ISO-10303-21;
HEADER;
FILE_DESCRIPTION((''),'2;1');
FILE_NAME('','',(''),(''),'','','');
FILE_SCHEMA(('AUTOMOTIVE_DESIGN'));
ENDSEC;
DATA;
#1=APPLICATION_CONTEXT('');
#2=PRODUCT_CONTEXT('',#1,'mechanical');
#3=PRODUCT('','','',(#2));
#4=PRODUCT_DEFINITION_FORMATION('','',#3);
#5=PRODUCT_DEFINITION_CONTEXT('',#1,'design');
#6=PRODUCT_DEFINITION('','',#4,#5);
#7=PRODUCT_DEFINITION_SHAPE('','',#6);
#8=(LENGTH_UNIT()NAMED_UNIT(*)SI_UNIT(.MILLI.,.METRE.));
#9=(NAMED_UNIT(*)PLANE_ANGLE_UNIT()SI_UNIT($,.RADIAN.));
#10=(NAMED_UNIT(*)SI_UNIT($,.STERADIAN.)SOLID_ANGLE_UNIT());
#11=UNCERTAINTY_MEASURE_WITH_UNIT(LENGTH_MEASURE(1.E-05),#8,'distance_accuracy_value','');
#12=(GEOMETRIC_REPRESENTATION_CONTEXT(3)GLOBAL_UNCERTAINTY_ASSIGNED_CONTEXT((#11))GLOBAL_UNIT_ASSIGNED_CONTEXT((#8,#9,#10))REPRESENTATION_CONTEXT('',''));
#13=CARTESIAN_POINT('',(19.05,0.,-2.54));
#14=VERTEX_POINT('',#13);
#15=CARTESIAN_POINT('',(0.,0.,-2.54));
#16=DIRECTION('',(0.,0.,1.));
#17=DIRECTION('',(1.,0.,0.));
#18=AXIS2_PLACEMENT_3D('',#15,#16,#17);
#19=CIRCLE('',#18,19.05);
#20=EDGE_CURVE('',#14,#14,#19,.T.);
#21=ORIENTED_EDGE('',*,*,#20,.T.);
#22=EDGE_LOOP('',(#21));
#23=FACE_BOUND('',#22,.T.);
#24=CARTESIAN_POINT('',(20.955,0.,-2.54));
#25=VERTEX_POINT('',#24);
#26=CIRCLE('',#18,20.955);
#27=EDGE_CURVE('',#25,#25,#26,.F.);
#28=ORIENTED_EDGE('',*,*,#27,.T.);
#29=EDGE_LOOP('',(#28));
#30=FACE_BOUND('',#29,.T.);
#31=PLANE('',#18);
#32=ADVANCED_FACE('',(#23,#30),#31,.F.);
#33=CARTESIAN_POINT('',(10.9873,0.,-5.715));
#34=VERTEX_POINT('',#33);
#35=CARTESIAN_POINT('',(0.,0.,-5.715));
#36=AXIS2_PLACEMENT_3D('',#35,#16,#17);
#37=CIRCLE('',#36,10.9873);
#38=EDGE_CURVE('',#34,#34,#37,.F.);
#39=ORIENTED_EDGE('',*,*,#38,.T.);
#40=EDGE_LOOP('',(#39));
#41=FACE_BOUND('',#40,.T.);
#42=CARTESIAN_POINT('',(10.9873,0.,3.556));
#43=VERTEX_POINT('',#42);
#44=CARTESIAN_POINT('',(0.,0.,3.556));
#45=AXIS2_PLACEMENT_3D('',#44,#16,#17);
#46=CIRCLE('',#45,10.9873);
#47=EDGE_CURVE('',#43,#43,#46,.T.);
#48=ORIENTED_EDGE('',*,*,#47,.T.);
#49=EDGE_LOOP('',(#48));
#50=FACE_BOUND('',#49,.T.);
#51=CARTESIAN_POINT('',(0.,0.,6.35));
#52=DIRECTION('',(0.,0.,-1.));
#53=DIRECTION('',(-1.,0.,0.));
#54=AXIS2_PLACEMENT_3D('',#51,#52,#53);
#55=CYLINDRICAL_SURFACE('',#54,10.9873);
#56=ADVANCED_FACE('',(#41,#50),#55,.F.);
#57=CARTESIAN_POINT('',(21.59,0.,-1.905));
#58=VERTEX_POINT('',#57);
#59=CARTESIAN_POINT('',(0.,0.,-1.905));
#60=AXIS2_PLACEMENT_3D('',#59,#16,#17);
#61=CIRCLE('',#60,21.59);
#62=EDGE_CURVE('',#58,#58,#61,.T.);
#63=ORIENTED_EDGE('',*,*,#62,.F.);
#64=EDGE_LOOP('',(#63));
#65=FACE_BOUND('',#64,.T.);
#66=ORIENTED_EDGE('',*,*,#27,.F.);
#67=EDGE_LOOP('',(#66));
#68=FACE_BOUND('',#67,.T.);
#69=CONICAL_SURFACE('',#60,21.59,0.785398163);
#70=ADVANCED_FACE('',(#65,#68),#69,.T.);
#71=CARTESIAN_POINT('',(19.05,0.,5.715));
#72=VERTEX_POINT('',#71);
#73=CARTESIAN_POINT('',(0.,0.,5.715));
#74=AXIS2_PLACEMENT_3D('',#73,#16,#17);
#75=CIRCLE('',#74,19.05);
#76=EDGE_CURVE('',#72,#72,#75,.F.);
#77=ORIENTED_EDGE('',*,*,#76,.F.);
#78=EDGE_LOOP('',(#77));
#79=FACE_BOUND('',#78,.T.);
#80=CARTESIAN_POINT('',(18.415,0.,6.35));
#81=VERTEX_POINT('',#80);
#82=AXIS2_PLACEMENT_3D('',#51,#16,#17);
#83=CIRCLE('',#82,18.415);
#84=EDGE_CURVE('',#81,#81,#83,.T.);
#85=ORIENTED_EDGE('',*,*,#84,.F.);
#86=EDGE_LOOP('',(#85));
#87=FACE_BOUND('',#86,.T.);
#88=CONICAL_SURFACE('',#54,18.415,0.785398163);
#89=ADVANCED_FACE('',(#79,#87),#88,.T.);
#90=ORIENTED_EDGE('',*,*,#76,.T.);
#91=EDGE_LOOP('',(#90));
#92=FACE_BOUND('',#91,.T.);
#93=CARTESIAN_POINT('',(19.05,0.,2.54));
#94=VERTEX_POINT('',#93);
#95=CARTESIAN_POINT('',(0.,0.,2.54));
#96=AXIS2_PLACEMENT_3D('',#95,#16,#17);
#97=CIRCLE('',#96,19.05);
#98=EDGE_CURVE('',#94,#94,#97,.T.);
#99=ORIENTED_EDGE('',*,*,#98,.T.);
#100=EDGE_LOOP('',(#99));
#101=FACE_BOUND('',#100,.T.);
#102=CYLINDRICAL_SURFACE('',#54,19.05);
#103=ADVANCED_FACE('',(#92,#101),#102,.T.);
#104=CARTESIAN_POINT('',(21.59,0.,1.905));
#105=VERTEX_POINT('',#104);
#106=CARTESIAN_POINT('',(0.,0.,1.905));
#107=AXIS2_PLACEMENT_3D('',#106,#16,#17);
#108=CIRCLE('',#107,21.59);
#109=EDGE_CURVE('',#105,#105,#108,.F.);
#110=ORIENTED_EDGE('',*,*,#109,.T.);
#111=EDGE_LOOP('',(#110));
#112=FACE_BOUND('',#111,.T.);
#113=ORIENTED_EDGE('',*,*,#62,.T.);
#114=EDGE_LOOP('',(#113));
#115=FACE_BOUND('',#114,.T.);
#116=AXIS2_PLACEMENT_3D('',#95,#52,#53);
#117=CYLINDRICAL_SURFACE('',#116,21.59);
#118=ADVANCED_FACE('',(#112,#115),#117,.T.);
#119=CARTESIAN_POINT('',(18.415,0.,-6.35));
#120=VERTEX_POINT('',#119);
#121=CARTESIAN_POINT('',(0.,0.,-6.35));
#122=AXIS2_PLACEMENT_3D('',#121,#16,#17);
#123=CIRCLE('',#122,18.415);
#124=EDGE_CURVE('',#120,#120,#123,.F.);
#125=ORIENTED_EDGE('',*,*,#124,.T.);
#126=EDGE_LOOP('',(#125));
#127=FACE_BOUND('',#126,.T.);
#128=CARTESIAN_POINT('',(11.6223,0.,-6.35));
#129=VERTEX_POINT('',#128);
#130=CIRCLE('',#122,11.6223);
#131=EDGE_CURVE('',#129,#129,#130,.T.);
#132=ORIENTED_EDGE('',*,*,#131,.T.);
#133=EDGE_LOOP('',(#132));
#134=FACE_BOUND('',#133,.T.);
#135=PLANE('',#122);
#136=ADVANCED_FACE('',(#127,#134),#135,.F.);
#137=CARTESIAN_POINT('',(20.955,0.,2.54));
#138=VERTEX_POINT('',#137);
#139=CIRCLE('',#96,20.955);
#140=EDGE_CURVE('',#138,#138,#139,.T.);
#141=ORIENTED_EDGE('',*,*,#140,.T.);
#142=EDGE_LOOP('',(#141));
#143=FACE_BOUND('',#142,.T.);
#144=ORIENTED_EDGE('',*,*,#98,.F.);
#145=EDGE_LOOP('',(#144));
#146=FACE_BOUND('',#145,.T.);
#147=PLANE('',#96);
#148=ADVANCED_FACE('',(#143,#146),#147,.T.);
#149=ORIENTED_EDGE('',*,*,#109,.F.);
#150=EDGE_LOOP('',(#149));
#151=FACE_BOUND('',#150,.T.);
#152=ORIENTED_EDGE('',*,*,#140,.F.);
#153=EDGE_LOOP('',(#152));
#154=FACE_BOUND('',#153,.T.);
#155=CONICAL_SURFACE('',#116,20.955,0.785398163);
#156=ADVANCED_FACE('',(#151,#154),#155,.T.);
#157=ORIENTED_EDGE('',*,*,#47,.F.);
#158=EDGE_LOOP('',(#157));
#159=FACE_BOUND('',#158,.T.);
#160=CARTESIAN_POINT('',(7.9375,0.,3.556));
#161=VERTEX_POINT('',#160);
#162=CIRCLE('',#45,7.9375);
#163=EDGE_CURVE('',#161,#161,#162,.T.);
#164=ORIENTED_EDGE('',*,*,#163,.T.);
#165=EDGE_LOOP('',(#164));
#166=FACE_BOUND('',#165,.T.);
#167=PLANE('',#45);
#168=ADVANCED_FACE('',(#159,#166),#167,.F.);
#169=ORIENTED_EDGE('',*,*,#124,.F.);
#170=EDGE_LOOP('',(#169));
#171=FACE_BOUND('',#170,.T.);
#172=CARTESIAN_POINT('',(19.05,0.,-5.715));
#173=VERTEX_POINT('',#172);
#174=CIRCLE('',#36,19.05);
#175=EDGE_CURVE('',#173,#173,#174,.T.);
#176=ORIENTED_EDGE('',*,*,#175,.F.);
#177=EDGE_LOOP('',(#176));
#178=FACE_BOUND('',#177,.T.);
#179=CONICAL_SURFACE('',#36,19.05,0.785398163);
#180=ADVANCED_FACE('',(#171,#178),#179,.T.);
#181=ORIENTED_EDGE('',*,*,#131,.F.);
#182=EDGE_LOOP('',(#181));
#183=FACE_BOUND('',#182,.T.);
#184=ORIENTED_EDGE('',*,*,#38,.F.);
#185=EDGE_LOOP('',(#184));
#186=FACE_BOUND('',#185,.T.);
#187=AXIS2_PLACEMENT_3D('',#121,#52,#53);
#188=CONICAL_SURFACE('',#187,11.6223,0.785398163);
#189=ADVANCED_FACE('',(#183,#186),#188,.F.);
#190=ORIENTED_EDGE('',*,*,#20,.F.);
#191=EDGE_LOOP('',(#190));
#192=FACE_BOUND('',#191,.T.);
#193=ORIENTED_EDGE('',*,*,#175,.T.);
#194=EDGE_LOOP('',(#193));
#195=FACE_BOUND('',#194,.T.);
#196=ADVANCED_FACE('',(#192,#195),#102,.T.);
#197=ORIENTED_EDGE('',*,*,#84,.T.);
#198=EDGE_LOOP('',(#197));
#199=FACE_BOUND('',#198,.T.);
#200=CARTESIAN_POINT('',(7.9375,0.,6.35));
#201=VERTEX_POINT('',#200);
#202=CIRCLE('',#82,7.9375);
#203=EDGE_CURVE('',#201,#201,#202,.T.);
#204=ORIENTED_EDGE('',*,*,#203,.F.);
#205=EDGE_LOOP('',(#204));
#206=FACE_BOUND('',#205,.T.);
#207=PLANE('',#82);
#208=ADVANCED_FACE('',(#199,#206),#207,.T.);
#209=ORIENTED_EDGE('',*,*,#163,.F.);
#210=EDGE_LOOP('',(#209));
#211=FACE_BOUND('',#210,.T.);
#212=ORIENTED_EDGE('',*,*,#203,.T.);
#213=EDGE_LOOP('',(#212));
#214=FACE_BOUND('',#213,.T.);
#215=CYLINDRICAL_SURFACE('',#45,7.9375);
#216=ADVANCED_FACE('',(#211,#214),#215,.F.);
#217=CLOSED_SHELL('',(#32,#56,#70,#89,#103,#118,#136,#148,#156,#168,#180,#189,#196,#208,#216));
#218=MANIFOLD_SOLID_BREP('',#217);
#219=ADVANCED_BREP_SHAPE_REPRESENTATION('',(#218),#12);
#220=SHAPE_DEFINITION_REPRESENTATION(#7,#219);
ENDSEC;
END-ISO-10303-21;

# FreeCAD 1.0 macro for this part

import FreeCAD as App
import Part
import Sketcher

V = App.Vector
Q = App.Units.Quantity


def edges_at(feature, points):
    """Names of the edges that pass closest to the given points."""
    edges = feature.Shape.Edges
    near = lambda p: min(range(len(edges)), key=lambda i: edges[i].distToShape(Part.Vertex(*p))[0])
    return sorted({f"Edge{near(p) + 1}" for p in points})

doc = App.newDocument("Part")
body = doc.addObject("PartDesign::Body", "Body")

# Sketch on XY plane
sketch1 = body.newObject("Sketcher::SketchObject", "Sketch")
sketch1.AttachmentSupport = (doc.getObject("XY_Plane"), [""])
sketch1.MapMode = "FlatFace"
sketch1.addGeometry([
    Part.Circle(V(0, 0, 0), V(0, 0, 1), 19.05),
    Part.Circle(V(0, 0, 0), V(0, 0, 1), 10.9873),
], False)
sketch1.addConstraint([
    Sketcher.Constraint("Coincident", 0, 3, -1, 1),
    Sketcher.Constraint("Coincident", 1, 3, -1, 1),
    Sketcher.Constraint("Diameter", 0, Q("1.5 in")),
    Sketcher.Constraint("Diameter", 1, Q("21.9746 mm")),
])
pad1 = body.newObject("PartDesign::Pad", "Pad")
pad1.Profile = sketch1
pad1.Length = Q("0.5 in")
pad1.Midplane = True

# Sketch on XY plane
sketch2 = body.newObject("Sketcher::SketchObject", "Sketch001")
sketch2.AttachmentSupport = (doc.getObject("XY_Plane"), [""])
sketch2.MapMode = "FlatFace"
sketch2.addGeometry([
    Part.Circle(V(0, 0, 0), V(0, 0, 1), 21.59),
    Part.Circle(V(0, 0, 0), V(0, 0, 1), 10.9873),
], False)
sketch2.addConstraint([
    Sketcher.Constraint("Coincident", 0, 3, -1, 1),
    Sketcher.Constraint("Coincident", 1, 3, -1, 1),
    Sketcher.Constraint("Diameter", 0, Q("1.7 in")),
    Sketcher.Constraint("Diameter", 1, Q("21.9746 mm")),
])
pad2 = body.newObject("PartDesign::Pad", "Pad001")
pad2.Profile = sketch2
pad2.Length = Q("0.2 in")
pad2.Midplane = True

# Sketch on XY plane
sketch3 = body.newObject("Sketcher::SketchObject", "Sketch002")
sketch3.AttachmentSupport = (doc.getObject("XY_Plane"), [""])
sketch3.MapMode = "FlatFace"
sketch3.AttachmentOffset = App.Placement(V(0, 0, 0.25 * 25.4), App.Rotation())
sketch3.addGeometry([
    Part.Circle(V(0, 0, 0), V(0, 0, 1), 10.9873),
    Part.Circle(V(0, 0, 0), V(0, 0, 1), 7.9375),
], False)
sketch3.addConstraint([
    Sketcher.Constraint("Coincident", 0, 3, -1, 1),
    Sketcher.Constraint("Coincident", 1, 3, -1, 1),
    Sketcher.Constraint("Diameter", 1, Q("0.625 in")),
    Sketcher.Constraint("Diameter", 0, Q("21.9746 mm")),
])
pad3 = body.newObject("PartDesign::Pad", "Pad002")
pad3.Profile = sketch3
pad3.Length = Q("0.11 in")
pad3.Reversed = True
doc.recompute()

chamfer = body.newObject("PartDesign::Chamfer", "Chamfer")
chamfer.Base = (pad3, edges_at(pad3, [
    (-21.59, 0, 2.54),
    (-21.59, 0, -2.54),
    (-19.05, 0, -6.35),
    (-19.05, 0, 6.35),
]))
chamfer.Size = Q("0.025 in")
doc.recompute()

chamfer2 = body.newObject("PartDesign::Chamfer", "Chamfer001")
chamfer2.Base = (chamfer, edges_at(chamfer, [(-10.987, 0, -6.35)]))
chamfer2.Size = Q("0.025 in")

doc.recompute()
